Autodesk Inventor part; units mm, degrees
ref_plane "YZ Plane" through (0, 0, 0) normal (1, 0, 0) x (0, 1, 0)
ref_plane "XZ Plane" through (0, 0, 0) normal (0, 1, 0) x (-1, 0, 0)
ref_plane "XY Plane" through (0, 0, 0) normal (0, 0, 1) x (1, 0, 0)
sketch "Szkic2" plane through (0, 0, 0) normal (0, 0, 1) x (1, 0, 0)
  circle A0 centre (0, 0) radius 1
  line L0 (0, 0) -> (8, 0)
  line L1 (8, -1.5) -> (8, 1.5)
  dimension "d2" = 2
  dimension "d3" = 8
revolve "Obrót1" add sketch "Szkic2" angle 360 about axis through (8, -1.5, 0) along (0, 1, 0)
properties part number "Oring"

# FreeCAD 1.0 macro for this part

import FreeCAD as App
import Part
import Sketcher
from FreeCAD import Vector
Q = App.Units.Quantity

doc = App.newDocument("Part")
body = doc.addObject("PartDesign::Body", "Body")

# Sketch on XY plane
sketch1 = body.newObject("Sketcher::SketchObject", "Sketch")
sketch1.AttachmentSupport = (doc.getObject("XY_Plane"), [""])
sketch1.MapMode = "FlatFace"
sketch1.addGeometry(Part.Circle(Vector(0, 0, 0), Vector(0, 0, 1), 1), False)
sketch1.addGeometry(Part.LineSegment(Vector(8, 0, 0), Vector(8, 10, 0)), True)  # axis
sketch1.addConstraint([
    Sketcher.Constraint("Vertical", 1),
    Sketcher.Constraint("Coincident", 0, 3, -1, 1),
    Sketcher.Constraint("PointOnObject", 1, 1, -1),
    Sketcher.Constraint("Diameter", 0, Q("2 mm")),
    Sketcher.Constraint("DistanceX", -1, 1, 1, 1, Q("8 mm")),
    Sketcher.Constraint("DistanceY", 1, 1, 1, 2, Q("10 mm")),
])
revolution = body.newObject("PartDesign::Revolution", "Revolution")
revolution.Profile = sketch1
revolution.ReferenceAxis = (sketch1, ["Axis0"])
revolution.Angle = 360

doc.recompute()
